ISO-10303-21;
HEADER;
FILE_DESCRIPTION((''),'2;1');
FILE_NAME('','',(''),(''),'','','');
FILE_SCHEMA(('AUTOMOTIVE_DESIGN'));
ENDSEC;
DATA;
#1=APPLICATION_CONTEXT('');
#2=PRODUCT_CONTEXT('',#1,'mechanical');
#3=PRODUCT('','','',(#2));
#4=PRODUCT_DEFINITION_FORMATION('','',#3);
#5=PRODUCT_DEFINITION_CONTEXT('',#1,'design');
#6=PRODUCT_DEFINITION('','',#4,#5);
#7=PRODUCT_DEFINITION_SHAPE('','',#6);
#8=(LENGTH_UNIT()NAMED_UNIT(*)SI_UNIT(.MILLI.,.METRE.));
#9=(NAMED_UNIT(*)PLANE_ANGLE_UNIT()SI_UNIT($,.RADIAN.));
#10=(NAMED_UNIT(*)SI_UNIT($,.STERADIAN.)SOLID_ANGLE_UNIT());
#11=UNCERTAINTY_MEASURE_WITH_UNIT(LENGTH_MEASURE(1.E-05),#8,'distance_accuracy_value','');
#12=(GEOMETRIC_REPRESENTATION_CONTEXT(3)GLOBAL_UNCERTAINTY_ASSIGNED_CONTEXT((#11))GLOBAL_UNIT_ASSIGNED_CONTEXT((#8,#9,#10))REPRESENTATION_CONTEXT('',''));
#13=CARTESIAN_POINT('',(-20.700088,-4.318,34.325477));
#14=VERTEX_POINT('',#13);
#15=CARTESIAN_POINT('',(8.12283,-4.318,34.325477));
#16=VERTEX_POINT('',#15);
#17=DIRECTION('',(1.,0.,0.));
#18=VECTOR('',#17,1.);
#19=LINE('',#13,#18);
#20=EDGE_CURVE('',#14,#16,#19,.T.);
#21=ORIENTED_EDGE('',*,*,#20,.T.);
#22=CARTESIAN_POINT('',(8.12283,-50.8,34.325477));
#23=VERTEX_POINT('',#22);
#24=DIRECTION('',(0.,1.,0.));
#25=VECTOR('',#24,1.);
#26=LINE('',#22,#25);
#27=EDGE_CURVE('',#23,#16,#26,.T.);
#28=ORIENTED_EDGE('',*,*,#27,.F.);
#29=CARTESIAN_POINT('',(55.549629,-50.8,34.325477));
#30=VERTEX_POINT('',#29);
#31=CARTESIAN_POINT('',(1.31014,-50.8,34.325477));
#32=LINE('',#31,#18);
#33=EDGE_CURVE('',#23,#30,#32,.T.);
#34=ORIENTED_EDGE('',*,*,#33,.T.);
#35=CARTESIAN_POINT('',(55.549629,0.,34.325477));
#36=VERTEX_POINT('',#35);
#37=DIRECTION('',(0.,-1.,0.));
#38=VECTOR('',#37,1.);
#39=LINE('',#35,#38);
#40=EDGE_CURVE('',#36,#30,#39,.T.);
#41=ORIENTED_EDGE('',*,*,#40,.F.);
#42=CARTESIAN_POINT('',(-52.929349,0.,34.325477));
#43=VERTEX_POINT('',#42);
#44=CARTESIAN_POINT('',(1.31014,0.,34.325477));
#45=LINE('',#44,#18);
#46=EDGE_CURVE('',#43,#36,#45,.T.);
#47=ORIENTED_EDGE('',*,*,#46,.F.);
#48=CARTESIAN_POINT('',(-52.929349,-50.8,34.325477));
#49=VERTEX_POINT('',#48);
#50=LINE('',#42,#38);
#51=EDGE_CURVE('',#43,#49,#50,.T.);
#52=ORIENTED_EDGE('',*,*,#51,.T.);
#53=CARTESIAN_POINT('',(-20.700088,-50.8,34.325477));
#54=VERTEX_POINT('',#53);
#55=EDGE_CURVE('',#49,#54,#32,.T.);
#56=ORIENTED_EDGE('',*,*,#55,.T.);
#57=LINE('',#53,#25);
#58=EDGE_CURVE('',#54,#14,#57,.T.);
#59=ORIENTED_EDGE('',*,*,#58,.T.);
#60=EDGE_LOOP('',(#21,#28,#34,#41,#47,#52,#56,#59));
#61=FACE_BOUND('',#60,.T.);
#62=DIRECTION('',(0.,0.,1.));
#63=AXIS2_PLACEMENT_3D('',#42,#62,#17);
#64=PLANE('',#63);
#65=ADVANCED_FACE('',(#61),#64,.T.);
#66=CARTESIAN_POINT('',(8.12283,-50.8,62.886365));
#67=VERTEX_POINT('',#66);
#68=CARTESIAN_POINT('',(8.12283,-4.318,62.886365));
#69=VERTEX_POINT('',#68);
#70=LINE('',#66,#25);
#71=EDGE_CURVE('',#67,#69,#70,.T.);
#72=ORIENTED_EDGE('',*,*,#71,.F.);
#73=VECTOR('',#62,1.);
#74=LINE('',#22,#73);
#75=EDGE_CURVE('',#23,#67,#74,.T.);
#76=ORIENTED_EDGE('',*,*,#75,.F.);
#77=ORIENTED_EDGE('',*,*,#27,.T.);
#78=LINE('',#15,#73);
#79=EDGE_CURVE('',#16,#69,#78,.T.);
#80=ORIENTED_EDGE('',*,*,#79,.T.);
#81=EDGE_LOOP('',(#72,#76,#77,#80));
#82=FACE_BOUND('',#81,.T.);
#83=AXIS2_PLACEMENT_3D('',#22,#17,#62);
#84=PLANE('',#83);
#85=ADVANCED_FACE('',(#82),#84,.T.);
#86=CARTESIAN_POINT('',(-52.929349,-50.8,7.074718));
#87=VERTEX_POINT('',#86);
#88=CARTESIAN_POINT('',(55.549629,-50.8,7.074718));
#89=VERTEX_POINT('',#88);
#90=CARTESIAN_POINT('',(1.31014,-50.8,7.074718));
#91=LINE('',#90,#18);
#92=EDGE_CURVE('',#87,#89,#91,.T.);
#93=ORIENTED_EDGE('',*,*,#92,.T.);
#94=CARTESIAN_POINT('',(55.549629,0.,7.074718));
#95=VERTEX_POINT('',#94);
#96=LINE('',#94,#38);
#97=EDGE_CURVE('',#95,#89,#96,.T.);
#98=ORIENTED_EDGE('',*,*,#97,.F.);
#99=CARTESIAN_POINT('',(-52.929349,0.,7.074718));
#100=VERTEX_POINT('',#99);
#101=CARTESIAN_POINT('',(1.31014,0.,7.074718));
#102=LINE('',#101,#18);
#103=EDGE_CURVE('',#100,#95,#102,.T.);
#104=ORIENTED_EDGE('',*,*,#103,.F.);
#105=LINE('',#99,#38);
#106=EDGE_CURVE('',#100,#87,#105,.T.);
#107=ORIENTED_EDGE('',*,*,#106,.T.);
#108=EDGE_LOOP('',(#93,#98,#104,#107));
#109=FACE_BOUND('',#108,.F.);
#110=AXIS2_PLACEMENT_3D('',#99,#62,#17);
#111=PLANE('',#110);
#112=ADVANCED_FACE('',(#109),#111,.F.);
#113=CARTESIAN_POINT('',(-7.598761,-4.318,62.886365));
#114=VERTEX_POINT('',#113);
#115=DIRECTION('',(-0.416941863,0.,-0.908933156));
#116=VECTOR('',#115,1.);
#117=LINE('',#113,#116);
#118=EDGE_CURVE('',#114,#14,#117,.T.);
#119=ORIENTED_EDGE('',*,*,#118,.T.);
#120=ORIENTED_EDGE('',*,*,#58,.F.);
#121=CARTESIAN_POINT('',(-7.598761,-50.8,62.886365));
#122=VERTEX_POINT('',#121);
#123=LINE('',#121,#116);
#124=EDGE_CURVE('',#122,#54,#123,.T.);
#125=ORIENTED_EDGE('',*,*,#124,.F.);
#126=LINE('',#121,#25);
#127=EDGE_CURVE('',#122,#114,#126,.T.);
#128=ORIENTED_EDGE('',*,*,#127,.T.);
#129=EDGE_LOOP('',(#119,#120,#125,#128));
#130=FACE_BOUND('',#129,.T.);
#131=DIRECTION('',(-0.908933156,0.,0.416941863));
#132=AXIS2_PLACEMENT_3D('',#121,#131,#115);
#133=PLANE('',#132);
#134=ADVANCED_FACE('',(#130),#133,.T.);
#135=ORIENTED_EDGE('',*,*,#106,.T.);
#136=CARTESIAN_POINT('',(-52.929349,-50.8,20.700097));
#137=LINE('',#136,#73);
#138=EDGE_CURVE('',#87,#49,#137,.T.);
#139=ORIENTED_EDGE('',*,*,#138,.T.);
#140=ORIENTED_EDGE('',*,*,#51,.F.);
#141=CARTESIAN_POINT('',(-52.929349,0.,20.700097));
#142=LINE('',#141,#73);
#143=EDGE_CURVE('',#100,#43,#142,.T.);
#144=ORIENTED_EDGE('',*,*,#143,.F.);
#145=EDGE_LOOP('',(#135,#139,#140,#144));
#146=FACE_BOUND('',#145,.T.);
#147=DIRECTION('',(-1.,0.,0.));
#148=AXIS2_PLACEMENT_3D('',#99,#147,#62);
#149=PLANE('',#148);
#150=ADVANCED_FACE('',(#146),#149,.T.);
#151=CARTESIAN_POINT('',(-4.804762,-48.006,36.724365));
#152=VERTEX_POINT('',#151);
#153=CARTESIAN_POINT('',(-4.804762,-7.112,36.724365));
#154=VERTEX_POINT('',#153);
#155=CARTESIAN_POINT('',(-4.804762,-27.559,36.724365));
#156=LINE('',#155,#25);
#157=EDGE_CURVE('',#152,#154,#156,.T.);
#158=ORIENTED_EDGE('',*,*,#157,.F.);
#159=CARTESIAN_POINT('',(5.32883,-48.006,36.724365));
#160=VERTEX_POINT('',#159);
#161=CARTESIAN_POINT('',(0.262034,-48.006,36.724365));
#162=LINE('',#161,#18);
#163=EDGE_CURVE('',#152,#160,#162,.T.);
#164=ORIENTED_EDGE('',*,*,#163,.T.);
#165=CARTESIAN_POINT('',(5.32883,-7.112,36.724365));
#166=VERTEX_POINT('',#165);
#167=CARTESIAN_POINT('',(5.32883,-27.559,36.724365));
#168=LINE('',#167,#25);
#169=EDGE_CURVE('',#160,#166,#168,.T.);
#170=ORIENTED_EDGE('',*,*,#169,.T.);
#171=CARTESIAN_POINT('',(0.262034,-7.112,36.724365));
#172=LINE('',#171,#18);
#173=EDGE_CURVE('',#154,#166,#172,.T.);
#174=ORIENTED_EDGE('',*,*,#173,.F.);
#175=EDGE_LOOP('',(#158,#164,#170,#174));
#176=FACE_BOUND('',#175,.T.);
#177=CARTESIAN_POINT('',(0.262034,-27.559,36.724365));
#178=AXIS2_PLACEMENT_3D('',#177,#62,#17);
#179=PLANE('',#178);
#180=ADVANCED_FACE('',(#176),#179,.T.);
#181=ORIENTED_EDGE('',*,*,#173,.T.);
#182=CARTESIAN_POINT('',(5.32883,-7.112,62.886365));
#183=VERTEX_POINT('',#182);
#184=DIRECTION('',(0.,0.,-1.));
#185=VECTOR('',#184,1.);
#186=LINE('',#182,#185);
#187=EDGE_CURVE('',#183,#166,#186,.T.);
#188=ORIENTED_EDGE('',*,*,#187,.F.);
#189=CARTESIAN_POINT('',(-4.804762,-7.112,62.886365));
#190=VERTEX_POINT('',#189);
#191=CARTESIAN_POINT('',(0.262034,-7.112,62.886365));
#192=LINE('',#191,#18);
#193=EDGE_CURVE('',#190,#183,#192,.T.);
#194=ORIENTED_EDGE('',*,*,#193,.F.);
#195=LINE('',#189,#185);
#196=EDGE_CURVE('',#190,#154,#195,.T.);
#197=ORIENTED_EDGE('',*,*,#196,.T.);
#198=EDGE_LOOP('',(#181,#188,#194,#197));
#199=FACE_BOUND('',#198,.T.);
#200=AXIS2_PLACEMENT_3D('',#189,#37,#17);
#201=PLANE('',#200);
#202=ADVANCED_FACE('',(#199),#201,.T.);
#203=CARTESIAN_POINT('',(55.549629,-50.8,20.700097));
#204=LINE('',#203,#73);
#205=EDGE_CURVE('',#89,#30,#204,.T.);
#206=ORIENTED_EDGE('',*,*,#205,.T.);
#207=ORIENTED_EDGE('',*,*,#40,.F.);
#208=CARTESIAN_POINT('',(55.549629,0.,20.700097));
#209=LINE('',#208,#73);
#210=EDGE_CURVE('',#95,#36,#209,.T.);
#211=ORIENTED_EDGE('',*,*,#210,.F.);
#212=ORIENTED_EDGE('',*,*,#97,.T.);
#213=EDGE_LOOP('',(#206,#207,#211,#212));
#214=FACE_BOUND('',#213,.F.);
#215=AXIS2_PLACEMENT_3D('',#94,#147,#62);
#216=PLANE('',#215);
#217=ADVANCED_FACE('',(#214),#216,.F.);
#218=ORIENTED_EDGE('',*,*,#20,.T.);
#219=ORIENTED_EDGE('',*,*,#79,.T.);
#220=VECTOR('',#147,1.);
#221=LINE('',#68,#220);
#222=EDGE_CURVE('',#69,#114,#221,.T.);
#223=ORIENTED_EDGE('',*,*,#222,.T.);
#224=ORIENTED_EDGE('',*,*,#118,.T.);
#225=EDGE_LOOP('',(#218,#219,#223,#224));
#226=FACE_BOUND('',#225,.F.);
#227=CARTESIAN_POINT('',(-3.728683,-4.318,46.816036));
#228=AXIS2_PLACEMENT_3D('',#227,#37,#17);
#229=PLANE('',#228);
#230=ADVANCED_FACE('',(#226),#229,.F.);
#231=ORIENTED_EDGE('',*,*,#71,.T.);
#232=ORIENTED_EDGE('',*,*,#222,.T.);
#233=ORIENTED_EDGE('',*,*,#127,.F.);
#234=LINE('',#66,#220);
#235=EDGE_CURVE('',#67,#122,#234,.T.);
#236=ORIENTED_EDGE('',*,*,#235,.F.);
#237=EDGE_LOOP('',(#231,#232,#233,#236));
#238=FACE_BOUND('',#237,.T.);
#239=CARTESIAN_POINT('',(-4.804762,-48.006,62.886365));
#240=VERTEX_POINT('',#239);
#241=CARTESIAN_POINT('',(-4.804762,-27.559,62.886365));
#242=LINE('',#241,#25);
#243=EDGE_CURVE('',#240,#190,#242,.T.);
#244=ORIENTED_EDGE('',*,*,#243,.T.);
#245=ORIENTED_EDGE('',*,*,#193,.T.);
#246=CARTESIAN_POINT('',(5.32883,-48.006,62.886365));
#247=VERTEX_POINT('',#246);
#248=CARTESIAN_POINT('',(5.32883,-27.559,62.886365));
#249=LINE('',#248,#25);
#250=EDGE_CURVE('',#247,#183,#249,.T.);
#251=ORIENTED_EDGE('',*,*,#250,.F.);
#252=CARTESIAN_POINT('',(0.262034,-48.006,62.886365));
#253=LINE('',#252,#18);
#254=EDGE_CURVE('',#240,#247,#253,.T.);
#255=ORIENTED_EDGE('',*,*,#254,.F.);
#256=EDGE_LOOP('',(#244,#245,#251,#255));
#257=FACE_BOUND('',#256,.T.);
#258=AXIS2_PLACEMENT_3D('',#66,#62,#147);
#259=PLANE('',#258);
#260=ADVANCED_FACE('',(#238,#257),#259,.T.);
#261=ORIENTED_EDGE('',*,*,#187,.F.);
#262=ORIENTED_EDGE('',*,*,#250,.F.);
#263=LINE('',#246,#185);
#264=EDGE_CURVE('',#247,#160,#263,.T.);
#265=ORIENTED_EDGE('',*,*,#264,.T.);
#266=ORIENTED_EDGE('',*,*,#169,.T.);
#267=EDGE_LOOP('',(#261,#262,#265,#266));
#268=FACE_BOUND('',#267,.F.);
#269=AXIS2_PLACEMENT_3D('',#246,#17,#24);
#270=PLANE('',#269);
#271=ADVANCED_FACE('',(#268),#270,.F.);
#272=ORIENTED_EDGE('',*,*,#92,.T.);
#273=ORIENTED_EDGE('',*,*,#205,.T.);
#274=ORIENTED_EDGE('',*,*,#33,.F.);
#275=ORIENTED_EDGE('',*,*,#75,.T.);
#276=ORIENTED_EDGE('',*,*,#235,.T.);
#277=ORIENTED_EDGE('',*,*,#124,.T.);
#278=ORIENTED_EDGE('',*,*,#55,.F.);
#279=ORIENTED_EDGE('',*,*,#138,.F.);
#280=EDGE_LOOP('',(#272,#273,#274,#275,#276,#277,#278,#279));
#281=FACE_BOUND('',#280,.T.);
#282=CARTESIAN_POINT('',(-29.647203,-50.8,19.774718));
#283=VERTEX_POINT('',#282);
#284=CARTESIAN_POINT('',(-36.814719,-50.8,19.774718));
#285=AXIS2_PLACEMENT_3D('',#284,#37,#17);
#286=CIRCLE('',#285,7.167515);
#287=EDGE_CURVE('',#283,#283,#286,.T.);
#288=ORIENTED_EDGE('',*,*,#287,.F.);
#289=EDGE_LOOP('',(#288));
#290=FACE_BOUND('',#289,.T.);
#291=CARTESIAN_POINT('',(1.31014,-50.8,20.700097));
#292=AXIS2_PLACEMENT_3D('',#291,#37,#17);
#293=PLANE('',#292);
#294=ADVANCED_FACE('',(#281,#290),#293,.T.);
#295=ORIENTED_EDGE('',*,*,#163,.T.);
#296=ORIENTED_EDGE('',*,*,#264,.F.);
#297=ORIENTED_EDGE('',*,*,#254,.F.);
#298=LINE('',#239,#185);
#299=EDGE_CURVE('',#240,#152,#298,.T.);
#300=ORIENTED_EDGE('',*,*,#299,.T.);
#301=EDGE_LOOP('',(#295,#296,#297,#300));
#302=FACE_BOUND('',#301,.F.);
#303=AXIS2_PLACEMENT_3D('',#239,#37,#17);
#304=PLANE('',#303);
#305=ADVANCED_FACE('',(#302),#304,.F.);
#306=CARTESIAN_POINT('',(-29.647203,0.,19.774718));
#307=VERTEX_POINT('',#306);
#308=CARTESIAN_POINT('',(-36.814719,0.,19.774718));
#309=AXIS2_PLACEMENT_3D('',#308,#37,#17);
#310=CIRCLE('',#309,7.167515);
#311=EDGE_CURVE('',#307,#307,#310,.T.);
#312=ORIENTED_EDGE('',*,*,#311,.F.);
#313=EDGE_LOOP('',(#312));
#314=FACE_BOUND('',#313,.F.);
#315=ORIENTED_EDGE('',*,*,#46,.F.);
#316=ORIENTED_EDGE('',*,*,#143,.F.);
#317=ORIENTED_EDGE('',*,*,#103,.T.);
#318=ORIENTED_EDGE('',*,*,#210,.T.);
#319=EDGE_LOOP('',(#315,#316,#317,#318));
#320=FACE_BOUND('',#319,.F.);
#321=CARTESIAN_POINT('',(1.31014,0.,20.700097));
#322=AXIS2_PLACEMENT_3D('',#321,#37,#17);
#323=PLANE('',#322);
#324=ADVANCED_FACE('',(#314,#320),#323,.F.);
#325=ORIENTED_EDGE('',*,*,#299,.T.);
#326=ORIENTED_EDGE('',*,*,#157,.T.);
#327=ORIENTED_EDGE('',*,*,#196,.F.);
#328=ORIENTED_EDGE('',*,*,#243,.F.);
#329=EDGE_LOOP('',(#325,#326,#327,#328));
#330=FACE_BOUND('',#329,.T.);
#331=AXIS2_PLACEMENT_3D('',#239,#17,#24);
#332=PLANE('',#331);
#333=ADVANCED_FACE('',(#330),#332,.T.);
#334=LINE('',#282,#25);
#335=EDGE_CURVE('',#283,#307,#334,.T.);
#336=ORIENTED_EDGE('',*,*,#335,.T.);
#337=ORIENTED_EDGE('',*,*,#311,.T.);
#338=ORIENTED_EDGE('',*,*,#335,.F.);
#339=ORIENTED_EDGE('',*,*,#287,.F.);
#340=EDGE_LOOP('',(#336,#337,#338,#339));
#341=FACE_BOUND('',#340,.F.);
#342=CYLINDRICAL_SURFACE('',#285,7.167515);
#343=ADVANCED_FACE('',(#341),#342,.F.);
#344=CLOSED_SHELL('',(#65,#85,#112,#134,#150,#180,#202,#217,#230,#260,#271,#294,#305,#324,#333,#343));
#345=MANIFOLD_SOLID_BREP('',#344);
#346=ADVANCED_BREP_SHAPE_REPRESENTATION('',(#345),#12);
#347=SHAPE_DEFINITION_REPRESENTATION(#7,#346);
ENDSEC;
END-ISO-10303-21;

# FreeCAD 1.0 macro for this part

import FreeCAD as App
import Part
import Sketcher

V = App.Vector
Q = App.Units.Quantity

doc = App.newDocument("Part")
body = doc.addObject("PartDesign::Body", "Body")

# Sketch on XZ plane
sketch1 = doc.addObject("Sketcher::SketchObject", "Sketch")
body.addObject(sketch1)
sketch1.AttachmentSupport = (doc.XZ_Plane, [""])
sketch1.MapMode = "FlatFace"
sketch1.addGeometry(Part.LineSegment(V(-53, 34, 0), V(-53, 7, 0)), False)
sketch1.addGeometry(Part.LineSegment(V(-53, 7, 0), V(56, 7, 0)), False)
sketch1.addGeometry(Part.LineSegment(V(56, 7, 0), V(56, 34, 0)), False)
sketch1.addGeometry(Part.LineSegment(V(56, 34, 0), V(-53, 34, 0)), False)
sketch1.addConstraint(Sketcher.Constraint("Coincident", 0, 2, 1, 1))
sketch1.addConstraint(Sketcher.Constraint("Coincident", 1, 2, 2, 1))
sketch1.addConstraint(Sketcher.Constraint("Coincident", 2, 2, 3, 1))
sketch1.addConstraint(Sketcher.Constraint("Coincident", 3, 2, 0, 1))
sketch1.addConstraint(Sketcher.Constraint("Vertical", 0))
sketch1.addConstraint(Sketcher.Constraint("Horizontal", 1))
sketch1.addConstraint(Sketcher.Constraint("Vertical", 2))
sketch1.addConstraint(Sketcher.Constraint("Horizontal", 3))
sketch1.addConstraint(Sketcher.Constraint("DistanceX", 1, 1, 1, 2, 108.478978))
sketch1.addConstraint(Sketcher.Constraint("DistanceY", 0, 2, 0, 1, 27.250759))
sketch1.addConstraint(Sketcher.Constraint("DistanceX", 0, 2, -1, 1, 52.929349))
sketch1.addConstraint(Sketcher.Constraint("DistanceY", -1, 1, 0, 2, 7.074718))
pad1 = doc.addObject("PartDesign::Pad", "Pad")
body.addObject(pad1)
pad1.Profile = sketch1
pad1.Length = Q("2 in")

# Sketch on XZ plane
sketch2 = doc.addObject("Sketcher::SketchObject", "Sketch001")
body.addObject(sketch2)
sketch2.AttachmentSupport = (doc.XZ_Plane, [""])
sketch2.MapMode = "FlatFace"
sketch2.AttachmentOffset = App.Placement(V(0, 0, 2 * 25.4), App.Rotation())
sketch2.addGeometry(Part.LineSegment(V(-8, 63, 0), V(-21, 34, 0)), False)
sketch2.addGeometry(Part.LineSegment(V(-21, 34, 0), V(8, 34, 0)), False)
sketch2.addGeometry(Part.LineSegment(V(8, 34, 0), V(8, 63, 0)), False)
sketch2.addGeometry(Part.LineSegment(V(8, 63, 0), V(-8, 63, 0)), False)
sketch2.addConstraint(Sketcher.Constraint("Coincident", 0, 2, 1, 1))
sketch2.addConstraint(Sketcher.Constraint("Coincident", 1, 2, 2, 1))
sketch2.addConstraint(Sketcher.Constraint("Coincident", 2, 2, 3, 1))
sketch2.addConstraint(Sketcher.Constraint("Coincident", 3, 2, 0, 1))
sketch2.addConstraint(Sketcher.Constraint("Horizontal", 1))
sketch2.addConstraint(Sketcher.Constraint("Vertical", 2))
sketch2.addConstraint(Sketcher.Constraint("Horizontal", 3))
sketch2.addConstraint(Sketcher.Constraint("DistanceX", 3, 2, 3, 1, 15.721591))
sketch2.addConstraint(Sketcher.Constraint("DistanceY", 2, 1, 2, 2, 28.560888))
sketch2.addConstraint(Sketcher.Constraint("Distance", 0, 31.422429))
sketch2.addConstraint(Sketcher.Constraint("DistanceX", -1, 1, 1, 2, 8.12283))
sketch2.addConstraint(Sketcher.Constraint("DistanceY", -1, 1, 0, 2, 34.325477))
pad2 = doc.addObject("PartDesign::Pad", "Pad001")
body.addObject(pad2)
pad2.Profile = sketch2
pad2.Length = Q("1.83 in")
pad2.Reversed = True

# Sketch on XZ plane
sketch3 = doc.addObject("Sketcher::SketchObject", "Sketch002")
body.addObject(sketch3)
sketch3.AttachmentSupport = (doc.XZ_Plane, [""])
sketch3.MapMode = "FlatFace"
sketch3.AttachmentOffset = App.Placement(V(0, 0, 2 * 25.4), App.Rotation())
sketch3.addGeometry(Part.Circle(V(-37, 20, 0), V(0, 0, 1), 7), False)
sketch3.addConstraint(Sketcher.Constraint("Diameter", 0, 14.335031))
sketch3.addConstraint(Sketcher.Constraint("DistanceX", 0, 3, -1, 1, 36.814719))
sketch3.addConstraint(Sketcher.Constraint("DistanceY", -1, 1, 0, 3, 19.774718))
pocket1 = doc.addObject("PartDesign::Pocket", "Pocket")
body.addObject(pocket1)
pocket1.Profile = sketch3
pocket1.Type = "ThroughAll"

# Sketch on XY plane
sketch4 = doc.addObject("Sketcher::SketchObject", "Sketch003")
body.addObject(sketch4)
sketch4.AttachmentSupport = (doc.XY_Plane, [""])
sketch4.MapMode = "FlatFace"
sketch4.AttachmentOffset = App.Placement(V(0, 0, 62.886365), App.Rotation())
sketch4.addGeometry(Part.LineSegment(V(-5, -7, 0), V(-5, -48, 0)), False)
sketch4.addGeometry(Part.LineSegment(V(-5, -48, 0), V(5, -48, 0)), False)
sketch4.addGeometry(Part.LineSegment(V(5, -48, 0), V(5, -7, 0)), False)
sketch4.addGeometry(Part.LineSegment(V(5, -7, 0), V(-5, -7, 0)), False)
sketch4.addConstraint(Sketcher.Constraint("Coincident", 0, 2, 1, 1))
sketch4.addConstraint(Sketcher.Constraint("Coincident", 1, 2, 2, 1))
sketch4.addConstraint(Sketcher.Constraint("Coincident", 2, 2, 3, 1))
sketch4.addConstraint(Sketcher.Constraint("Coincident", 3, 2, 0, 1))
sketch4.addConstraint(Sketcher.Constraint("Vertical", 0))
sketch4.addConstraint(Sketcher.Constraint("Horizontal", 1))
sketch4.addConstraint(Sketcher.Constraint("Vertical", 2))
sketch4.addConstraint(Sketcher.Constraint("Horizontal", 3))
sketch4.addConstraint(Sketcher.Constraint("DistanceY", 0, 2, 0, 1, Q("1.61 in")))
sketch4.addConstraint(Sketcher.Constraint("DistanceY", 0, 2, -1, 1, Q("1.89 in")))
sketch4.addConstraint(Sketcher.Constraint("DistanceX", 1, 1, 1, 2, 10.133591))
sketch4.addConstraint(Sketcher.Constraint("DistanceX", 0, 2, -1, 1, 4.804762))
pocket2 = doc.addObject("PartDesign::Pocket", "Pocket001")
body.addObject(pocket2)
pocket2.Profile = sketch4
pocket2.Length = Q("1.03 in")

doc.recompute()
